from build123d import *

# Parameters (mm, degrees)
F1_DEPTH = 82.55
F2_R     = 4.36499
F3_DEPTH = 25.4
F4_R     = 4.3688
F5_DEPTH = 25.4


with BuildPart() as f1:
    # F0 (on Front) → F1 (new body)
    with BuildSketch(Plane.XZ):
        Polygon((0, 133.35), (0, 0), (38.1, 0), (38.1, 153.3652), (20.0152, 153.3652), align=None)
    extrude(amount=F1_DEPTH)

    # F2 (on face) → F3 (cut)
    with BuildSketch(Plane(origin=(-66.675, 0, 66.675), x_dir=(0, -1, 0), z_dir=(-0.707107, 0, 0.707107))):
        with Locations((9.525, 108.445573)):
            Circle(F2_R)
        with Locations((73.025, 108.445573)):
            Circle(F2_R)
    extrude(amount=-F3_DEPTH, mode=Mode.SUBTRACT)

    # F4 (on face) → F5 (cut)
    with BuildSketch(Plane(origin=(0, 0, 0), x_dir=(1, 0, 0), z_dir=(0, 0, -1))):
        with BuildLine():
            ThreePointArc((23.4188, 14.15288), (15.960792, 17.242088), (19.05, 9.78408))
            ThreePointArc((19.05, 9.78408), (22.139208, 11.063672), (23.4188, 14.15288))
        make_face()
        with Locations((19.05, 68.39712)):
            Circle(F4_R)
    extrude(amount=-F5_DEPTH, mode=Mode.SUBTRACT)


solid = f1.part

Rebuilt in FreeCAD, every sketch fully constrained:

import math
import FreeCAD as App
import Part
import Sketcher

V = App.Vector
Q = App.Units.Quantity

doc = App.newDocument("Part")
params = doc.addObject("Spreadsheet::Sheet", "Params")
for row, (alias, value) in enumerate([
    ("sketch1_width", "1.5 in"),
    ("sketch1_height", "5.25 in"),
    ("sketch1_width2", "0.712 in"),
    ("pad1_length", "3.25 in"),
    ("pocket1_length", "1 in"),
    ("sketch3_diameter", "0.344 in"),
    ("pocket2_length", "1 in"),
], start=1):
    params.set(f"A{row}", alias)
    params.set(f"B{row}", "=" + value)
    params.setAlias(f"B{row}", alias)

body = doc.addObject("PartDesign::Body", "Body")

# Sketch on XZ plane
sketch1 = body.newObject("Sketcher::SketchObject", "Sketch")
sketch1.AttachmentSupport = (doc.getObject("XZ_Plane"), [""])
sketch1.MapMode = "FlatFace"
sketch1.addGeometry([
    Part.LineSegment(V(0, 133, 0), V(0, 0, 0)),  # 0
    Part.LineSegment(V(0, 0, 0), V(38, 0, 0)),  # 1
    Part.LineSegment(V(38, 0, 0), V(38, 153, 0)),  # 2
    Part.LineSegment(V(38, 153, 0), V(20, 153, 0)),  # 3
    Part.LineSegment(V(20, 153, 0), V(0, 133, 0)),  # 4
], False)
sketch1.addConstraint([
    Sketcher.Constraint("Coincident", 0, 2, 1, 1),
    Sketcher.Constraint("Coincident", 1, 2, 2, 1),
    Sketcher.Constraint("Coincident", 2, 2, 3, 1),
    Sketcher.Constraint("Coincident", 3, 2, 4, 1),
    Sketcher.Constraint("Coincident", 4, 2, 0, 1),
    Sketcher.Constraint("Vertical", 0),
    Sketcher.Constraint("Horizontal", 1),
    Sketcher.Constraint("Vertical", 2),
    Sketcher.Constraint("Horizontal", 3),
    Sketcher.Constraint("Coincident", 0, 2, -1, 1),
    Sketcher.Constraint("DistanceX", 1, 1, 1, 2, Q("1.5 in")),
    Sketcher.Constraint("Angle", 4, Q("-135 deg")),
    Sketcher.Constraint("DistanceY", 0, 2, 0, 1, Q("5.25 in")),
    Sketcher.Constraint("DistanceX", 3, 2, 3, 1, Q("0.712 in")),
])
sketch1.setExpression("Constraints[10]", "Params.sketch1_width")
sketch1.setExpression("Constraints[12]", "Params.sketch1_height")
sketch1.setExpression("Constraints[13]", "Params.sketch1_width2")
pad1 = body.newObject("PartDesign::Pad", "Pad")
pad1.Profile = sketch1
pad1.setExpression("Length", "Params.pad1_length")

# Sketch on an angled plane
sketch2 = body.newObject("Sketcher::SketchObject", "Sketch001")
sketch2.Placement = App.Placement(V(-66.675, 0, 66.675), App.Rotation(V(0, -1, 0), V(0.707106781, 0, 0.707106781), V(-0.707106781, 0, 0.707106781), "ZXY"))
sketch2.addGeometry([
    Part.Circle(V(9.5, 108.4, 0), V(0, 0, 1), 4.4),
    Part.Circle(V(73, 108.4, 0), V(0, 0, 1), 4.4),
], False)
sketch2.addConstraint([
    Sketcher.Constraint("Equal", 0, 1),
    Sketcher.Constraint("Horizontal", 0, 3, 1, 3),
    Sketcher.Constraint("Diameter", 0, Q("0.3437 in")),
    Sketcher.Constraint("DistanceX", 0, 3, 1, 3, Q("2.5 in")),
    Sketcher.Constraint("DistanceX", -1, 1, 0, 3, Q("0.375 in")),
    Sketcher.Constraint("DistanceY", -1, 1, 0, 3, 108.445573),
])
pocket1 = body.newObject("PartDesign::Pocket", "Pocket")
pocket1.Profile = sketch2
pocket1.setExpression("Length", "Params.pocket1_length")

# Sketch on XY plane
sketch3 = body.newObject("Sketcher::SketchObject", "Sketch002")
sketch3.AttachmentSupport = (doc.getObject("XY_Plane"), [""])
sketch3.MapMode = "FlatFace"
sketch3.addGeometry([
    Part.ArcOfCircle(Part.Circle(V(19.1, -14.2, 0), V(0, 0, 1), 4.4), math.radians(90), math.radians(360)),
    Part.ArcOfCircle(Part.Circle(V(19, -14.2, 0), V(0, 0, 1), 4.4), math.radians(0), math.radians(90)),
    Part.Circle(V(19.1, -68.4, 0), V(0, 0, 1), 4.4),
], False)
sketch3.addConstraint([
    Sketcher.Constraint("Tangent", 0, 1, 1, 2),
    Sketcher.Constraint("Coincident", 1, 1, 0, 2),
    Sketcher.Constraint("Equal", 1, 2),
    Sketcher.Constraint("Horizontal", 0, 3, 1, 1),
    Sketcher.Constraint("Vertical", 1, 3, 2, 3),
    Sketcher.Constraint("Vertical", 2, 3, 0, 1),
    Sketcher.Constraint("Diameter", 2, Q("0.344 in")),
    Sketcher.Constraint("DistanceX", -1, 1, 0, 3, Q("0.75 in")),
    Sketcher.Constraint("DistanceY", 0, 3, -1, 1, Q("0.5572 in")),
    Sketcher.Constraint("DistanceY", 2, 3, -1, 1, Q("2.6928 in")),
])
sketch3.setExpression("Constraints[6]", "Params.sketch3_diameter")
pocket2 = body.newObject("PartDesign::Pocket", "Pocket001")
pocket2.Profile = sketch3
pocket2.setExpression("Length", "Params.pocket2_length")
pocket2.Reversed = True

doc.recompute()
